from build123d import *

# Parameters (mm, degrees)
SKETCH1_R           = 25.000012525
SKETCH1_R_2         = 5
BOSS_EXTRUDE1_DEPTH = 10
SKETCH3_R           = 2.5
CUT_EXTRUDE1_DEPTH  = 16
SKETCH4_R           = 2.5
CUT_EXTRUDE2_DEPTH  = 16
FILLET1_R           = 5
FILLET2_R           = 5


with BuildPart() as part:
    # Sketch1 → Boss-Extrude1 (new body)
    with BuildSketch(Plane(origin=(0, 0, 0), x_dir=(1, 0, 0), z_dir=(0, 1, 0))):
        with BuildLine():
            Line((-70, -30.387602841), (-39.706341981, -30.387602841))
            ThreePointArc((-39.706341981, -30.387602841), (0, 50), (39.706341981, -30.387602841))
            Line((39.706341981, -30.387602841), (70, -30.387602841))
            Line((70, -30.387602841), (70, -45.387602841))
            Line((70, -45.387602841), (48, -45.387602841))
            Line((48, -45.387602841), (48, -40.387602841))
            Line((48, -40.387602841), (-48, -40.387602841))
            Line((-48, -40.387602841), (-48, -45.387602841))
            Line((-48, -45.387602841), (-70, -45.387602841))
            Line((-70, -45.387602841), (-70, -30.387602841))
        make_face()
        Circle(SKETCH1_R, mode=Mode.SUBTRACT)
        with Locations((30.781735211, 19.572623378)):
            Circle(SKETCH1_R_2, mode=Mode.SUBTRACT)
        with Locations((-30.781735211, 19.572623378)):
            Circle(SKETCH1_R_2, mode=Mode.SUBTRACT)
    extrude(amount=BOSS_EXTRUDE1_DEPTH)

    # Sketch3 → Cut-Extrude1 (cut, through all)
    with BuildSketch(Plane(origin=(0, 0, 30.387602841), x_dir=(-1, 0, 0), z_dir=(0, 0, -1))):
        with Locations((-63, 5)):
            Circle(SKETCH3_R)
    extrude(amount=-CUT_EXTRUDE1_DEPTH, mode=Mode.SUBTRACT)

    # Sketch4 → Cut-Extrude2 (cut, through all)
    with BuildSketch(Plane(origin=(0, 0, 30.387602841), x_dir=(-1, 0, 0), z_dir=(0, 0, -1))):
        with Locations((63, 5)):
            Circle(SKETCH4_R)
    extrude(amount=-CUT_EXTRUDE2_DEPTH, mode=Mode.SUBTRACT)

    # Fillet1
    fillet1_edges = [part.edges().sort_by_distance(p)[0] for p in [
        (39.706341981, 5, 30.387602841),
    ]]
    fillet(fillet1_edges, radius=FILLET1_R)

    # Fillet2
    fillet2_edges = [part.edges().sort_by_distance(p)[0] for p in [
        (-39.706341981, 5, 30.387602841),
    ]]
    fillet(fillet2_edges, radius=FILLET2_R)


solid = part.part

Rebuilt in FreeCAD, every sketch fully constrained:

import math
import FreeCAD as App
import Part
import Sketcher

V = App.Vector
Q = App.Units.Quantity


def edges_at(feature, points):
    """Names of the edges that pass closest to the given points."""
    edges = feature.Shape.Edges
    near = lambda p: min(range(len(edges)), key=lambda i: edges[i].distToShape(Part.Vertex(*p))[0])
    return sorted({f"Edge{near(p) + 1}" for p in points})

doc = App.newDocument("Part")
body = doc.addObject("PartDesign::Body", "Body")

# Sketch on XZ plane
sketch1 = body.newObject("Sketcher::SketchObject", "Sketch")
sketch1.AttachmentSupport = (doc.getObject("XZ_Plane"), [""])
sketch1.MapMode = "FlatFace"
sketch1.addGeometry([
    Part.LineSegment(V(-40, 30, 0), V(-70, 30, 0)),  # 0
    Part.LineSegment(V(-70, 30, 0), V(-70, 45, 0)),  # 1
    Part.LineSegment(V(-70, 45, 0), V(-48, 45, 0)),  # 2
    Part.LineSegment(V(-48, 45, 0), V(-48, 40, 0)),  # 3
    Part.LineSegment(V(-48, 40, 0), V(48, 40, 0)),  # 4
    Part.LineSegment(V(48, 40, 0), V(48, 45, 0)),  # 5
    Part.LineSegment(V(48, 45, 0), V(70, 45, 0)),  # 6
    Part.LineSegment(V(70, 45, 0), V(70, 30, 0)),  # 7
    Part.LineSegment(V(70, 30, 0), V(40, 30, 0)),  # 8
    Part.ArcOfCircle(Part.Circle(V(0, 0, 0), V(0, 0, 1), 50), math.radians(143), math.radians(397)),  # 9
    Part.Circle(V(0, 0, 0), V(0, 0, 1), 25),  # 10
    Part.Circle(V(31, -20, 0), V(0, 0, 1), 5),  # 11
    Part.Circle(V(-31, -20, 0), V(0, 0, 1), 5),  # 12
], False)
sketch1.addConstraint([
    Sketcher.Constraint("Coincident", 0, 2, 1, 1),
    Sketcher.Constraint("Coincident", 1, 2, 2, 1),
    Sketcher.Constraint("Coincident", 2, 2, 3, 1),
    Sketcher.Constraint("Coincident", 3, 2, 4, 1),
    Sketcher.Constraint("Coincident", 4, 2, 5, 1),
    Sketcher.Constraint("Coincident", 5, 2, 6, 1),
    Sketcher.Constraint("Coincident", 6, 2, 7, 1),
    Sketcher.Constraint("Coincident", 7, 2, 8, 1),
    Sketcher.Constraint("Coincident", 8, 2, 9, 2),
    Sketcher.Constraint("Coincident", 9, 1, 0, 1),
    Sketcher.Constraint("Horizontal", 0),
    Sketcher.Constraint("Vertical", 1),
    Sketcher.Constraint("Horizontal", 2),
    Sketcher.Constraint("Vertical", 3),
    Sketcher.Constraint("Horizontal", 4),
    Sketcher.Constraint("Vertical", 5),
    Sketcher.Constraint("Horizontal", 6),
    Sketcher.Constraint("Vertical", 7),
    Sketcher.Constraint("Horizontal", 8),
    Sketcher.Constraint("Coincident", 9, 3, -1, 1),
    Sketcher.Constraint("Coincident", 10, 3, -1, 1),
    Sketcher.Constraint("Equal", 11, 12),
    Sketcher.Constraint("Symmetric", 11, 3, 12, 3, -2),
    Sketcher.Constraint("Symmetric", 2, 2, 5, 2, -2),
    Sketcher.Constraint("Symmetric", 0, 2, 7, 2, -2),
    Sketcher.Constraint("Diameter", 11, Q("10 mm")),
    Sketcher.Constraint("Radius", 9, Q("50 mm")),
    Sketcher.Constraint("DistanceX", 2, 1, 2, 2, Q("22 mm")),
    Sketcher.Constraint("DistanceX", 4, 1, 4, 2, Q("96 mm")),
    Sketcher.Constraint("DistanceY", 1, 1, 1, 2, Q("15 mm")),
    Sketcher.Constraint("DistanceY", 3, 2, 3, 1, Q("5 mm")),
    Sketcher.Constraint("Diameter", 10, Q("50.000025 mm")),
    Sketcher.Constraint("DistanceX", 0, 2, 0, 1, Q("30.293658 mm")),
    Sketcher.Constraint("DistanceX", 12, 3, 11, 3, Q("61.56347 mm")),
    Sketcher.Constraint("DistanceY", 11, 3, -1, 1, Q("19.572623 mm")),
])
pad1 = body.newObject("PartDesign::Pad", "Pad")
pad1.Profile = sketch1
pad1.Length = 10
pad1.Reversed = True

# Sketch on XY plane
sketch2 = body.newObject("Sketcher::SketchObject", "Sketch001")
sketch2.AttachmentSupport = (doc.getObject("XY_Plane"), [""])
sketch2.MapMode = "FlatFace"
sketch2.AttachmentOffset = App.Placement(V(0, 0, 30.387603), App.Rotation())
sketch2.addGeometry(Part.Circle(V(63, 5, 0), V(0, 0, 1), 2.5), False)
sketch2.addConstraint([
    Sketcher.Constraint("Diameter", 0, Q("5 mm")),
    Sketcher.Constraint("DistanceX", -1, 1, 0, 3, Q("63 mm")),
    Sketcher.Constraint("DistanceY", -1, 1, 0, 3, Q("5 mm")),
])
pocket1 = body.newObject("PartDesign::Pocket", "Pocket")
pocket1.Profile = sketch2
pocket1.Type = "ThroughAll"
pocket1.Reversed = True

# Sketch on XY plane
sketch3 = body.newObject("Sketcher::SketchObject", "Sketch002")
sketch3.AttachmentSupport = (doc.getObject("XY_Plane"), [""])
sketch3.MapMode = "FlatFace"
sketch3.AttachmentOffset = App.Placement(V(0, 0, 30.387603), App.Rotation())
sketch3.addGeometry(Part.Circle(V(-63, 5, 0), V(0, 0, 1), 2.5), False)
sketch3.addConstraint([
    Sketcher.Constraint("Diameter", 0, Q("5 mm")),
    Sketcher.Constraint("DistanceX", 0, 3, -1, 1, Q("63 mm")),
    Sketcher.Constraint("DistanceY", -1, 1, 0, 3, Q("5 mm")),
])
pocket2 = body.newObject("PartDesign::Pocket", "Pocket001")
pocket2.Profile = sketch3
pocket2.Type = "ThroughAll"
pocket2.Reversed = True
doc.recompute()

fillet = body.newObject("PartDesign::Fillet", "Fillet")
fillet.Base = (pocket2, edges_at(pocket2, [(39.706, 5, 30.388)]))
fillet.Radius = 5
doc.recompute()

fillet2 = body.newObject("PartDesign::Fillet", "Fillet001")
fillet2.Base = (fillet, edges_at(fillet, [(-39.706, 5, 30.388)]))
fillet2.Radius = 5

doc.recompute()
